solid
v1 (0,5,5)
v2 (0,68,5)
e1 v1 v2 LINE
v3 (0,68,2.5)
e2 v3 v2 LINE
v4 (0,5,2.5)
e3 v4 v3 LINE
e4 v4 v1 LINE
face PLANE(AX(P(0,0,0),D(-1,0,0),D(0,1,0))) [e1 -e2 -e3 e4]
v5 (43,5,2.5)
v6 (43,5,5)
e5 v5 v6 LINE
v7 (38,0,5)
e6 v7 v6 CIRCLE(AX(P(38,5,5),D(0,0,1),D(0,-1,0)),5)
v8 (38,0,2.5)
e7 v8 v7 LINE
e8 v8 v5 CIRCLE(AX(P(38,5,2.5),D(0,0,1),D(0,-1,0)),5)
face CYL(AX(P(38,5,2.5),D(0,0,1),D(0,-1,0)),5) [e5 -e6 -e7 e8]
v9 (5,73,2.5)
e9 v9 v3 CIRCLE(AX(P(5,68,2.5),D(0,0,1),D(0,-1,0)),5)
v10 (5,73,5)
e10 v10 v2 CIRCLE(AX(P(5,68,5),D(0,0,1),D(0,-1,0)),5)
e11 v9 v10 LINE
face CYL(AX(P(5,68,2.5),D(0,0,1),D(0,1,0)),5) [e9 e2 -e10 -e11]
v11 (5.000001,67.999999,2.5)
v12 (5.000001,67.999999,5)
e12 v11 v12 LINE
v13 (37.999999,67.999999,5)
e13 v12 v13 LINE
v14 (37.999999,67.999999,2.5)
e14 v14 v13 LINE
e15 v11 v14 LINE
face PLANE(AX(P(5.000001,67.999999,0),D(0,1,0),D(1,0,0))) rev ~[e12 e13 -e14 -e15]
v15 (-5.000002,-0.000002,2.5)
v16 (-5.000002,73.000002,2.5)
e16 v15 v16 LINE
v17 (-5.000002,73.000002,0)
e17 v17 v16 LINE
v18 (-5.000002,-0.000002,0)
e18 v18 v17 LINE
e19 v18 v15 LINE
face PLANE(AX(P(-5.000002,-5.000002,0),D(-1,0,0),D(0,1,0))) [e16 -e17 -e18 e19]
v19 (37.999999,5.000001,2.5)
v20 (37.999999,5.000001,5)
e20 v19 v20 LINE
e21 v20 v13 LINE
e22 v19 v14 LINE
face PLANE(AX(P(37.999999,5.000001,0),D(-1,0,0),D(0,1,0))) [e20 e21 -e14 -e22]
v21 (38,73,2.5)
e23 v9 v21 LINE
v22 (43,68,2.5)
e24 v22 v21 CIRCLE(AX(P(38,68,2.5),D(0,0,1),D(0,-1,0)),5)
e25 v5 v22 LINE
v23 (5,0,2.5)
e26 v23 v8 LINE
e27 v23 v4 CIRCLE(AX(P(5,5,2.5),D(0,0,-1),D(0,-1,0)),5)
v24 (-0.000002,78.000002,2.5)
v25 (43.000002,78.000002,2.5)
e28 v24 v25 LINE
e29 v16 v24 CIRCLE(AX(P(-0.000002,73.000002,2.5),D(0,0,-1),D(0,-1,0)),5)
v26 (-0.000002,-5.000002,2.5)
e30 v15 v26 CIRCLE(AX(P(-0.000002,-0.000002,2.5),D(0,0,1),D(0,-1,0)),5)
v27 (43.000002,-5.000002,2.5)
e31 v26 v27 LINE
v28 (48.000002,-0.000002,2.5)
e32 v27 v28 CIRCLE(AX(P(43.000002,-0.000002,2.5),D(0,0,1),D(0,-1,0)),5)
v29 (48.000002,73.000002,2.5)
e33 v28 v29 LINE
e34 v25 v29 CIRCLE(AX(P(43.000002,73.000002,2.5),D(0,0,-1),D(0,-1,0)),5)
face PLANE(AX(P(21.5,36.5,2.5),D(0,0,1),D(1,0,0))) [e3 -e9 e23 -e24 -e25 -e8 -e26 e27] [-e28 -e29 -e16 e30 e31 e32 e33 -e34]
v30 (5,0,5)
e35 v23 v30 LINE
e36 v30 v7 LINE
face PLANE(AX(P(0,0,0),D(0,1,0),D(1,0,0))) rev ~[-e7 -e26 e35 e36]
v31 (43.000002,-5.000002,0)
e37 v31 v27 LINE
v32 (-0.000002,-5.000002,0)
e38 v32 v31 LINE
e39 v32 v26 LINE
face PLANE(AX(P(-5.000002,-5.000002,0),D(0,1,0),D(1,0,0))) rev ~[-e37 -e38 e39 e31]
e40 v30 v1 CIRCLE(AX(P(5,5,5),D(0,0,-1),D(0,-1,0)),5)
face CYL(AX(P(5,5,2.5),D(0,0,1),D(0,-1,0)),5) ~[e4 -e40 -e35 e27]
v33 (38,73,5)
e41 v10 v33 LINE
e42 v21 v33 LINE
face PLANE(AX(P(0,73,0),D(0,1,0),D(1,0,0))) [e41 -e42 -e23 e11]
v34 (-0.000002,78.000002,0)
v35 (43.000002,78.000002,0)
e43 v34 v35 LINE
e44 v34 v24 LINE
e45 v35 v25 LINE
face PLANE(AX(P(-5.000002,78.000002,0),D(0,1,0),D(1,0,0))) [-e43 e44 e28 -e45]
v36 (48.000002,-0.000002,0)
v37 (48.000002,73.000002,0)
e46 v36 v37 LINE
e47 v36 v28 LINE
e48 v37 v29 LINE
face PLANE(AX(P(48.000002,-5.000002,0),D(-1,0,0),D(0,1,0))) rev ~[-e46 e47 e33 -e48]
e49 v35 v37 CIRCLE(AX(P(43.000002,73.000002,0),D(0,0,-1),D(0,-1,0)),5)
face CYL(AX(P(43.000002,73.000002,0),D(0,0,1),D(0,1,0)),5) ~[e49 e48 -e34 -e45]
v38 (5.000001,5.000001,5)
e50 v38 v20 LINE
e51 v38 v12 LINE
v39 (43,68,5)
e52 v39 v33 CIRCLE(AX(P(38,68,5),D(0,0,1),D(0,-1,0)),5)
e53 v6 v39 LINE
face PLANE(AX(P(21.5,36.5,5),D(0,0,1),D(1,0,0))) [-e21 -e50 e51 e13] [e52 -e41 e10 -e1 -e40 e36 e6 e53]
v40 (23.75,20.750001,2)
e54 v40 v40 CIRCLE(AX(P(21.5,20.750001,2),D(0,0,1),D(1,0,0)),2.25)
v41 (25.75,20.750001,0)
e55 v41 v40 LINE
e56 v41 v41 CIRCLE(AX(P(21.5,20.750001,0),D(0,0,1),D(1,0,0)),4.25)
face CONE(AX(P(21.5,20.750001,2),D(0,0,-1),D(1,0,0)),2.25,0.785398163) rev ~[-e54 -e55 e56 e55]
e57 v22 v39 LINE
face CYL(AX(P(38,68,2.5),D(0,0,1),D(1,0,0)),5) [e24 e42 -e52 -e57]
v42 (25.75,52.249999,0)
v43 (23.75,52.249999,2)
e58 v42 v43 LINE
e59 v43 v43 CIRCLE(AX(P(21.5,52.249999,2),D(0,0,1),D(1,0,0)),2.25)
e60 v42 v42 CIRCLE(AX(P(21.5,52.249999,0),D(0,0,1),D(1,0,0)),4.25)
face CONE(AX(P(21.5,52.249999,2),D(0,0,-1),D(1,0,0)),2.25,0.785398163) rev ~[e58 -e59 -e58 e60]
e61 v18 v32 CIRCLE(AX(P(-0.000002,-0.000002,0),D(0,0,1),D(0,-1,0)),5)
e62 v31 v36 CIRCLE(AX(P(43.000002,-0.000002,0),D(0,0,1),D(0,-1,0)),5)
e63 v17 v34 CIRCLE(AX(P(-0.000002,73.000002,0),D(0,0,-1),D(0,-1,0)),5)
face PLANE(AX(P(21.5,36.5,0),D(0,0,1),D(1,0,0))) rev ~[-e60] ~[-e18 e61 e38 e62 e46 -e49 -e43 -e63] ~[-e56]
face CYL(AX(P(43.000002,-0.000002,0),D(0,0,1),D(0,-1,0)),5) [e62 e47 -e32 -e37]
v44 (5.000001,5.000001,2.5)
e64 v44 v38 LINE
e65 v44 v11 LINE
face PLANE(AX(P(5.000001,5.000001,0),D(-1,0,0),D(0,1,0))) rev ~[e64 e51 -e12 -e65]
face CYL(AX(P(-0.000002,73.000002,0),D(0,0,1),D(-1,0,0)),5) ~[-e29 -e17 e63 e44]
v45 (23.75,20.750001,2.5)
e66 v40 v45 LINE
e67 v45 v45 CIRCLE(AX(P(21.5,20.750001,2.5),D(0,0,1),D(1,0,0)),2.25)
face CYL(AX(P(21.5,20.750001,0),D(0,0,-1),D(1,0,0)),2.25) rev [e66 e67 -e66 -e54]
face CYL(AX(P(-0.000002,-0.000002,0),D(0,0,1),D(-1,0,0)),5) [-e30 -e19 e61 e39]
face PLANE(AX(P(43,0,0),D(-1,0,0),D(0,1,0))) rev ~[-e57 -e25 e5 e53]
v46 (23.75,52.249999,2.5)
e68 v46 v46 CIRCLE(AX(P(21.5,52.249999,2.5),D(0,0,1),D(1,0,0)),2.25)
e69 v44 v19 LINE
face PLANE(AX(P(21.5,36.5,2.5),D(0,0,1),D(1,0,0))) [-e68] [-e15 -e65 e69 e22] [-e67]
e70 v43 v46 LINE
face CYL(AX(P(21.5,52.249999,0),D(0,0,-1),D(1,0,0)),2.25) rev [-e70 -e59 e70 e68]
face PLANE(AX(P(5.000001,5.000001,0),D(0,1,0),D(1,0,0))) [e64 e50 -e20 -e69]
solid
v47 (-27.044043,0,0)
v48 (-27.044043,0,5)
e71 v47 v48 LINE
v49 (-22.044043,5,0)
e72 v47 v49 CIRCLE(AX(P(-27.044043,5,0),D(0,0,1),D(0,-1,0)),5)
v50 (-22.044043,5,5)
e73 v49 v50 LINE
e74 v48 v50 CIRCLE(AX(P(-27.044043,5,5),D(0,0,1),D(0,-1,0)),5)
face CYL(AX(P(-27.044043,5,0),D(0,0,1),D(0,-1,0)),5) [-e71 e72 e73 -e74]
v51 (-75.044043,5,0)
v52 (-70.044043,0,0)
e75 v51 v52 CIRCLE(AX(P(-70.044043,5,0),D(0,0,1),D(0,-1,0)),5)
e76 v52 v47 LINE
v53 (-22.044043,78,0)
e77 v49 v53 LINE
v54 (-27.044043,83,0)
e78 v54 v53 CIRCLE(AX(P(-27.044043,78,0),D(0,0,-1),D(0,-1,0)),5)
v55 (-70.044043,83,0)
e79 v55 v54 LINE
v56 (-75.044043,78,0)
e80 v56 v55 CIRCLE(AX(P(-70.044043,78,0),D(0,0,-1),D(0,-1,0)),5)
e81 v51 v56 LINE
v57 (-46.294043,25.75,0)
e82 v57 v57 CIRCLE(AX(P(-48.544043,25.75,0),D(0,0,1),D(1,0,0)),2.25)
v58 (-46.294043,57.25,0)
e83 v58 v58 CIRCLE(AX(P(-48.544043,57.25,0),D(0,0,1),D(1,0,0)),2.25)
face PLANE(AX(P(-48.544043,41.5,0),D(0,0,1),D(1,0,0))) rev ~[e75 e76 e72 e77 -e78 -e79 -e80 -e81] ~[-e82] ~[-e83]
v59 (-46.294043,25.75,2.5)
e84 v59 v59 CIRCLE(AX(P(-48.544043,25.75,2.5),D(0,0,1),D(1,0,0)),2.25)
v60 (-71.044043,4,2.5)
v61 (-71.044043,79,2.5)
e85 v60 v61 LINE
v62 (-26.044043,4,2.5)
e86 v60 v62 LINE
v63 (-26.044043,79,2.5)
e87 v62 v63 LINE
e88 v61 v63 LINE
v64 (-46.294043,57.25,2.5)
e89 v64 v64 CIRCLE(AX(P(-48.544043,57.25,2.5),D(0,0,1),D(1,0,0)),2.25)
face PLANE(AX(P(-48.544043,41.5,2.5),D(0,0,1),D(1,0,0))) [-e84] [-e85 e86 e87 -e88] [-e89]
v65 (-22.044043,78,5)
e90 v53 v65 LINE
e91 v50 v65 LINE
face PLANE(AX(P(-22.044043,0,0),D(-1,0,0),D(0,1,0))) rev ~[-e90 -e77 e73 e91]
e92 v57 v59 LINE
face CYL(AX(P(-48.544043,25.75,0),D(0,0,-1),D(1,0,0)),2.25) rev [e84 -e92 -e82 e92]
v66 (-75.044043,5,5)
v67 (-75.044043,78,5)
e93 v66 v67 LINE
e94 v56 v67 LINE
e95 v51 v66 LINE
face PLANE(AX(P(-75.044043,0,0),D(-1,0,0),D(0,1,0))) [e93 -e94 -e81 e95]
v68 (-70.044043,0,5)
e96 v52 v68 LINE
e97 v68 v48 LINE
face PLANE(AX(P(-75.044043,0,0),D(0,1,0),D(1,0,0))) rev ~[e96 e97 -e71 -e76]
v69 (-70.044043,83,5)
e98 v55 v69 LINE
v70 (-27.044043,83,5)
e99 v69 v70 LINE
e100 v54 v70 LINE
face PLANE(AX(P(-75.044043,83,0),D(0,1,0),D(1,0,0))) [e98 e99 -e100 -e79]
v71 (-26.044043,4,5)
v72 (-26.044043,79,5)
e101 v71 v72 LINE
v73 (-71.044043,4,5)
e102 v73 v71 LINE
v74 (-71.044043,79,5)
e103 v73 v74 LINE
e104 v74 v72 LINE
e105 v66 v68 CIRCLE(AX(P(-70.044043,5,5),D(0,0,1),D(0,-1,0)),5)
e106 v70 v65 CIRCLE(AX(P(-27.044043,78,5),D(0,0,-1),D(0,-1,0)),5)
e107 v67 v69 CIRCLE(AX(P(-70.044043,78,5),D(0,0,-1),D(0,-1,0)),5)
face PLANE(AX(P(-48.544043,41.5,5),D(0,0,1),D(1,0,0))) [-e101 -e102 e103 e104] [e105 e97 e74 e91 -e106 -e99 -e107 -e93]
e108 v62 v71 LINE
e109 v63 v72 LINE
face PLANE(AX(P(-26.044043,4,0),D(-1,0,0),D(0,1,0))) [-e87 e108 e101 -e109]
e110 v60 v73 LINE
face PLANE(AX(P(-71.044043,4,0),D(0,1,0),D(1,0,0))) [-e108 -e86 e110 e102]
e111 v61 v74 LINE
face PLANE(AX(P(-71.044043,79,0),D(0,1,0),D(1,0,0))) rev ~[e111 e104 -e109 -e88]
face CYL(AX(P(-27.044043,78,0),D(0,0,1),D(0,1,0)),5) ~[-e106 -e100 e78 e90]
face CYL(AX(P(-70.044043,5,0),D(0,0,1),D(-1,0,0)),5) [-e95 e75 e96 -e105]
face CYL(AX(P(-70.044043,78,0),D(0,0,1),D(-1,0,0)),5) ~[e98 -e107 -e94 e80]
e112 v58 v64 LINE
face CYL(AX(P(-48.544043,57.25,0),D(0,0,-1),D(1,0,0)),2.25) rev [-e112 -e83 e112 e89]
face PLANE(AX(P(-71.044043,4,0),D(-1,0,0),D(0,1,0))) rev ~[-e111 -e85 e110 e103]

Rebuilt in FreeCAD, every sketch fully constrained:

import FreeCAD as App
import Part
import Sketcher
Q = App.Units.Quantity


def edges_at(feature, points):
    """Names of the edges that pass closest to the given points."""
    edges = feature.Shape.Edges
    near = lambda p: min(range(len(edges)), key=lambda i: edges[i].distToShape(Part.Vertex(*p))[0])
    return sorted({f"Edge{near(p) + 1}" for p in points})

doc = App.newDocument("Part")
params = doc.addObject("Spreadsheet::Sheet", "Params")
for row, (alias, value) in enumerate([
    ("sketch1_width", "43 mm"),
    ("sketch1_height", "73 mm"),
    ("pad1_length", "5 mm"),
    ("sketch2_diameter", "4.5 mm"),
    ("sketch2_width", "43 mm"),
    ("sketch2_height", "73 mm"),
    ("pad2_length", "2.5 mm"),
    ("fillet_radius", "5 mm"),
    ("chamfer_size", "2 mm"),
    ("sketch3_width", "53 mm"),
    ("sketch3_width2", "45 mm"),
    ("sketch3_height", "83 mm"),
    ("sketch3_height2", "75 mm"),
    ("pad3_length", "5 mm"),
    ("fillet2_radius", "5 mm"),
    ("sketch4_diameter", "4.5 mm"),
    ("sketch4_width", "45 mm"),
    ("sketch4_height", "75 mm"),
    ("pad4_length", "2.5 mm"),
], start=1):
    params.set(f"A{row}", alias)
    params.set(f"B{row}", "=" + value)
    params.setAlias(f"B{row}", alias)

body = doc.addObject("PartDesign::Body", "Body")

# Sketch on XY plane
sketch1 = body.newObject("Sketcher::SketchObject", "Sketch")
sketch1.AttachmentSupport = (doc.getObject("XY_Plane"), [""])
sketch1.MapMode = "FlatFace"
sketch1.addGeometry([
    Part.LineSegment(App.Vector(0, 73, 0), App.Vector(0, 0, 0)),  # 0
    Part.LineSegment(App.Vector(0, 0, 0), App.Vector(43, 0, 0)),  # 1
    Part.LineSegment(App.Vector(43, 0, 0), App.Vector(43, 73, 0)),  # 2
    Part.LineSegment(App.Vector(43, 73, 0), App.Vector(0, 73, 0)),  # 3
    Part.LineSegment(App.Vector(38, 5, 0), App.Vector(5, 5, 0)),  # 4
    Part.LineSegment(App.Vector(5, 5, 0), App.Vector(5, 68, 0)),  # 5
    Part.LineSegment(App.Vector(5, 68, 0), App.Vector(38, 68, 0)),  # 6
    Part.LineSegment(App.Vector(38, 68, 0), App.Vector(38, 5, 0)),  # 7
], False)
sketch1.addConstraint([
    Sketcher.Constraint("Coincident", 0, 2, 1, 1),
    Sketcher.Constraint("Coincident", 1, 2, 2, 1),
    Sketcher.Constraint("Coincident", 2, 2, 3, 1),
    Sketcher.Constraint("Coincident", 3, 2, 0, 1),
    Sketcher.Constraint("Coincident", 4, 2, 5, 1),
    Sketcher.Constraint("Coincident", 5, 2, 6, 1),
    Sketcher.Constraint("Coincident", 6, 2, 7, 1),
    Sketcher.Constraint("Coincident", 7, 2, 4, 1),
    Sketcher.Constraint("Vertical", 0),
    Sketcher.Constraint("Horizontal", 1),
    Sketcher.Constraint("Vertical", 2),
    Sketcher.Constraint("Horizontal", 3),
    Sketcher.Constraint("Horizontal", 4),
    Sketcher.Constraint("Vertical", 5),
    Sketcher.Constraint("Horizontal", 6),
    Sketcher.Constraint("Vertical", 7),
    Sketcher.Constraint("Coincident", 0, 2, -1, 1),
    Sketcher.Constraint("DistanceX", 1, 1, 1, 2, Q("43 mm")),
    Sketcher.Constraint("DistanceY", 0, 2, 0, 1, Q("73 mm")),
    Sketcher.Constraint("DistanceX", -1, 1, 4, 2, Q("5.000001 mm")),
    Sketcher.Constraint("DistanceY", -1, 1, 4, 2, Q("5.000001 mm")),
    Sketcher.Constraint("DistanceY", -1, 1, 5, 2, Q("67.999999 mm")),
    Sketcher.Constraint("DistanceX", -1, 1, 6, 2, Q("37.999999 mm")),
])
sketch1.setExpression("Constraints[17]", "Params.sketch1_width")
sketch1.setExpression("Constraints[18]", "Params.sketch1_height")
pad1 = body.newObject("PartDesign::Pad", "Pad")
pad1.Profile = sketch1
pad1.setExpression("Length", "Params.pad1_length")

# Sketch on XY plane
sketch2 = body.newObject("Sketcher::SketchObject", "Sketch001")
sketch2.AttachmentSupport = (doc.getObject("XY_Plane"), [""])
sketch2.MapMode = "FlatFace"
sketch2.addGeometry([
    Part.LineSegment(App.Vector(-5, 78, 0), App.Vector(-5, -5, 0)),  # 0
    Part.LineSegment(App.Vector(-5, -5, 0), App.Vector(48, -5, 0)),  # 1
    Part.LineSegment(App.Vector(48, -5, 0), App.Vector(48, 78, 0)),  # 2
    Part.LineSegment(App.Vector(48, 78, 0), App.Vector(-5, 78, 0)),  # 3
    Part.LineSegment(App.Vector(43, 0, 0), App.Vector(0, 0, 0)),  # 4
    Part.LineSegment(App.Vector(0, 0, 0), App.Vector(0, 73, 0)),  # 5
    Part.LineSegment(App.Vector(0, 73, 0), App.Vector(43, 73, 0)),  # 6
    Part.LineSegment(App.Vector(43, 73, 0), App.Vector(43, 0, 0)),  # 7
    Part.LineSegment(App.Vector(5, 68, 0), App.Vector(5, 5, 0)),  # 8
    Part.LineSegment(App.Vector(5, 5, 0), App.Vector(38, 5, 0)),  # 9
    Part.LineSegment(App.Vector(38, 5, 0), App.Vector(38, 68, 0)),  # 10
    Part.LineSegment(App.Vector(38, 68, 0), App.Vector(5, 68, 0)),  # 11
    Part.Circle(App.Vector(21.5, 20.8, 0), App.Vector(0, 0, 1), 2.2),  # 12
    Part.Circle(App.Vector(21.5, 52.2, 0), App.Vector(0, 0, 1), 2.2),  # 13
], False)
sketch2.addConstraint([
    Sketcher.Constraint("Coincident", 0, 2, 1, 1),
    Sketcher.Constraint("Coincident", 1, 2, 2, 1),
    Sketcher.Constraint("Coincident", 2, 2, 3, 1),
    Sketcher.Constraint("Coincident", 3, 2, 0, 1),
    Sketcher.Constraint("Coincident", 4, 2, 5, 1),
    Sketcher.Constraint("Coincident", 5, 2, 6, 1),
    Sketcher.Constraint("Coincident", 6, 2, 7, 1),
    Sketcher.Constraint("Coincident", 7, 2, 4, 1),
    Sketcher.Constraint("Coincident", 8, 2, 9, 1),
    Sketcher.Constraint("Coincident", 9, 2, 10, 1),
    Sketcher.Constraint("Coincident", 10, 2, 11, 1),
    Sketcher.Constraint("Coincident", 11, 2, 8, 1),
    Sketcher.Constraint("Vertical", 0),
    Sketcher.Constraint("Horizontal", 1),
    Sketcher.Constraint("Vertical", 2),
    Sketcher.Constraint("Horizontal", 3),
    Sketcher.Constraint("Horizontal", 4),
    Sketcher.Constraint("Vertical", 5),
    Sketcher.Constraint("Horizontal", 6),
    Sketcher.Constraint("Vertical", 7),
    Sketcher.Constraint("Vertical", 8),
    Sketcher.Constraint("Horizontal", 9),
    Sketcher.Constraint("Vertical", 10),
    Sketcher.Constraint("Horizontal", 11),
    Sketcher.Constraint("Coincident", 4, 2, -1, 1),
    Sketcher.Constraint("Equal", 12, 13),
    Sketcher.Constraint("Symmetric", 0, 2, 8, 2, -1, 1),
    Sketcher.Constraint("Vertical", 12, 3, 13, 3),
    Sketcher.Constraint("Diameter", 12, Q("4.5 mm")),
    Sketcher.Constraint("DistanceX", 4, 2, 4, 1, Q("43 mm")),
    Sketcher.Constraint("DistanceY", 5, 1, 5, 2, Q("73 mm")),
    Sketcher.Constraint("DistanceX", 0, 2, -1, 1, Q("5.000002 mm")),
    Sketcher.Constraint("DistanceY", 0, 2, -1, 1, Q("5.000002 mm")),
    Sketcher.Constraint("DistanceX", -1, 1, 1, 2, Q("48.000002 mm")),
    Sketcher.Constraint("DistanceY", -1, 1, 2, 2, Q("78.000002 mm")),
    Sketcher.Constraint("DistanceX", -1, 1, 9, 2, Q("37.999999 mm")),
    Sketcher.Constraint("DistanceY", -1, 1, 10, 2, Q("67.999999 mm")),
    Sketcher.Constraint("DistanceX", -1, 1, 12, 3, Q("21.5 mm")),
    Sketcher.Constraint("DistanceY", 12, 3, 13, 3, Q("31.499999 mm")),
    Sketcher.Constraint("DistanceY", -1, 1, 12, 3, Q("20.750001 mm")),
])
sketch2.setExpression("Constraints[28]", "Params.sketch2_diameter")
sketch2.setExpression("Constraints[29]", "Params.sketch2_width")
sketch2.setExpression("Constraints[30]", "Params.sketch2_height")
pad2 = body.newObject("PartDesign::Pad", "Pad001")
pad2.Profile = sketch2
pad2.setExpression("Length", "Params.pad2_length")
doc.recompute()

fillet = body.newObject("PartDesign::Fillet", "Fillet")
fillet.Base = (pad2, edges_at(pad2, [
    (-5, 78, 1.25),
    (0, 73, 3.75),
    (43, 73, 3.75),
    (48, 78, 1.25),
    (-5, -5, 1.25),
    (0, 0, 3.75),
    (48, -5, 1.25),
    (43, 0, 3.75),
]))
fillet.setExpression("Radius", "Params.fillet_radius")
doc.recompute()

chamfer = body.newObject("PartDesign::Chamfer", "Chamfer")
chamfer.Base = (fillet, edges_at(fillet, [(19.25, 52.25, 0), (19.25, 20.75, 0)]))
chamfer.setExpression("Size", "Params.chamfer_size")
body2 = doc.addObject("PartDesign::Body", "Body001")

# Sketch on XY plane
sketch3 = body2.newObject("Sketcher::SketchObject", "Sketch002")
sketch3.AttachmentSupport = (doc.getObject("XY_Plane001"), [""])
sketch3.MapMode = "FlatFace"
sketch3.addGeometry([
    Part.LineSegment(App.Vector(-75, 83, 0), App.Vector(-75, 0, 0)),  # 0
    Part.LineSegment(App.Vector(-75, 0, 0), App.Vector(-22, 0, 0)),  # 1
    Part.LineSegment(App.Vector(-22, 0, 0), App.Vector(-22, 83, 0)),  # 2
    Part.LineSegment(App.Vector(-22, 83, 0), App.Vector(-75, 83, 0)),  # 3
    Part.LineSegment(App.Vector(-26, 4, 0), App.Vector(-71, 4, 0)),  # 4
    Part.LineSegment(App.Vector(-71, 4, 0), App.Vector(-71, 79, 0)),  # 5
    Part.LineSegment(App.Vector(-71, 79, 0), App.Vector(-26, 79, 0)),  # 6
    Part.LineSegment(App.Vector(-26, 79, 0), App.Vector(-26, 4, 0)),  # 7
], False)
sketch3.addConstraint([
    Sketcher.Constraint("Coincident", 0, 2, 1, 1),
    Sketcher.Constraint("Coincident", 1, 2, 2, 1),
    Sketcher.Constraint("Coincident", 2, 2, 3, 1),
    Sketcher.Constraint("Coincident", 3, 2, 0, 1),
    Sketcher.Constraint("Coincident", 4, 2, 5, 1),
    Sketcher.Constraint("Coincident", 5, 2, 6, 1),
    Sketcher.Constraint("Coincident", 6, 2, 7, 1),
    Sketcher.Constraint("Coincident", 7, 2, 4, 1),
    Sketcher.Constraint("Vertical", 0),
    Sketcher.Constraint("Horizontal", 1),
    Sketcher.Constraint("Vertical", 2),
    Sketcher.Constraint("Horizontal", 3),
    Sketcher.Constraint("Horizontal", 4),
    Sketcher.Constraint("Vertical", 5),
    Sketcher.Constraint("Horizontal", 6),
    Sketcher.Constraint("Vertical", 7),
    Sketcher.Constraint("PointOnObject", 0, 2, -1),
    Sketcher.Constraint("DistanceX", 1, 1, 1, 2, Q("53 mm")),
    Sketcher.Constraint("DistanceX", 4, 2, 4, 1, Q("45 mm")),
    Sketcher.Constraint("DistanceY", 0, 2, 0, 1, Q("83 mm")),
    Sketcher.Constraint("DistanceY", 5, 1, 5, 2, Q("75 mm")),
    Sketcher.Constraint("DistanceY", -1, 1, 4, 2, Q("4 mm")),
    Sketcher.Constraint("DistanceX", 0, 2, 4, 2, Q("4 mm")),
    Sketcher.Constraint("DistanceX", 0, 2, -1, 1, Q("75.044043 mm")),
])
sketch3.setExpression("Constraints[17]", "Params.sketch3_width")
sketch3.setExpression("Constraints[18]", "Params.sketch3_width2")
sketch3.setExpression("Constraints[19]", "Params.sketch3_height")
sketch3.setExpression("Constraints[20]", "Params.sketch3_height2")
pad3 = body2.newObject("PartDesign::Pad", "Pad002")
pad3.Profile = sketch3
pad3.setExpression("Length", "Params.pad3_length")
doc.recompute()

fillet2 = body2.newObject("PartDesign::Fillet", "Fillet001")
fillet2.Base = (pad3, edges_at(pad3, [
    (-75.044, 83, 2.5),
    (-22.044, 83, 2.5),
    (-75.044, 0, 2.5),
    (-22.044, 0, 2.5),
]))
fillet2.setExpression("Radius", "Params.fillet2_radius")

# Sketch on XY plane
sketch4 = body2.newObject("Sketcher::SketchObject", "Sketch003")
sketch4.AttachmentSupport = (doc.getObject("XY_Plane001"), [""])
sketch4.MapMode = "FlatFace"
sketch4.addGeometry([
    Part.LineSegment(App.Vector(-71, 79, 0), App.Vector(-71, 4, 0)),  # 0
    Part.LineSegment(App.Vector(-71, 4, 0), App.Vector(-26, 4, 0)),  # 1
    Part.LineSegment(App.Vector(-26, 4, 0), App.Vector(-26, 79, 0)),  # 2
    Part.LineSegment(App.Vector(-26, 79, 0), App.Vector(-71, 79, 0)),  # 3
    Part.Circle(App.Vector(-48.5, 25.8, 0), App.Vector(0, 0, 1), 2.2),  # 4
    Part.Circle(App.Vector(-48.5, 57.2, 0), App.Vector(0, 0, 1), 2.2),  # 5
], False)
sketch4.addConstraint([
    Sketcher.Constraint("Coincident", 0, 2, 1, 1),
    Sketcher.Constraint("Coincident", 1, 2, 2, 1),
    Sketcher.Constraint("Coincident", 2, 2, 3, 1),
    Sketcher.Constraint("Coincident", 3, 2, 0, 1),
    Sketcher.Constraint("Vertical", 0),
    Sketcher.Constraint("Horizontal", 1),
    Sketcher.Constraint("Vertical", 2),
    Sketcher.Constraint("Horizontal", 3),
    Sketcher.Constraint("Equal", 4, 5),
    Sketcher.Constraint("Vertical", 4, 3, 5, 3),
    Sketcher.Constraint("Diameter", 4, Q("4.5 mm")),
    Sketcher.Constraint("DistanceX", 1, 1, 1, 2, Q("45 mm")),
    Sketcher.Constraint("DistanceY", 0, 2, 0, 1, Q("75 mm")),
    Sketcher.Constraint("DistanceY", -1, 1, 0, 2, Q("4 mm")),
    Sketcher.Constraint("DistanceY", 4, 3, 5, 3, Q("31.5 mm")),
    Sketcher.Constraint("DistanceX", 0, 2, 4, 3, Q("22.5 mm")),
    Sketcher.Constraint("DistanceY", -1, 1, 4, 3, Q("25.75 mm")),
    Sketcher.Constraint("DistanceX", 4, 3, -1, 1, Q("48.544043 mm")),
])
sketch4.setExpression("Constraints[10]", "Params.sketch4_diameter")
sketch4.setExpression("Constraints[11]", "Params.sketch4_width")
sketch4.setExpression("Constraints[12]", "Params.sketch4_height")
pad4 = body2.newObject("PartDesign::Pad", "Pad003")
pad4.Profile = sketch4
pad4.setExpression("Length", "Params.pad4_length")

doc.recompute()
